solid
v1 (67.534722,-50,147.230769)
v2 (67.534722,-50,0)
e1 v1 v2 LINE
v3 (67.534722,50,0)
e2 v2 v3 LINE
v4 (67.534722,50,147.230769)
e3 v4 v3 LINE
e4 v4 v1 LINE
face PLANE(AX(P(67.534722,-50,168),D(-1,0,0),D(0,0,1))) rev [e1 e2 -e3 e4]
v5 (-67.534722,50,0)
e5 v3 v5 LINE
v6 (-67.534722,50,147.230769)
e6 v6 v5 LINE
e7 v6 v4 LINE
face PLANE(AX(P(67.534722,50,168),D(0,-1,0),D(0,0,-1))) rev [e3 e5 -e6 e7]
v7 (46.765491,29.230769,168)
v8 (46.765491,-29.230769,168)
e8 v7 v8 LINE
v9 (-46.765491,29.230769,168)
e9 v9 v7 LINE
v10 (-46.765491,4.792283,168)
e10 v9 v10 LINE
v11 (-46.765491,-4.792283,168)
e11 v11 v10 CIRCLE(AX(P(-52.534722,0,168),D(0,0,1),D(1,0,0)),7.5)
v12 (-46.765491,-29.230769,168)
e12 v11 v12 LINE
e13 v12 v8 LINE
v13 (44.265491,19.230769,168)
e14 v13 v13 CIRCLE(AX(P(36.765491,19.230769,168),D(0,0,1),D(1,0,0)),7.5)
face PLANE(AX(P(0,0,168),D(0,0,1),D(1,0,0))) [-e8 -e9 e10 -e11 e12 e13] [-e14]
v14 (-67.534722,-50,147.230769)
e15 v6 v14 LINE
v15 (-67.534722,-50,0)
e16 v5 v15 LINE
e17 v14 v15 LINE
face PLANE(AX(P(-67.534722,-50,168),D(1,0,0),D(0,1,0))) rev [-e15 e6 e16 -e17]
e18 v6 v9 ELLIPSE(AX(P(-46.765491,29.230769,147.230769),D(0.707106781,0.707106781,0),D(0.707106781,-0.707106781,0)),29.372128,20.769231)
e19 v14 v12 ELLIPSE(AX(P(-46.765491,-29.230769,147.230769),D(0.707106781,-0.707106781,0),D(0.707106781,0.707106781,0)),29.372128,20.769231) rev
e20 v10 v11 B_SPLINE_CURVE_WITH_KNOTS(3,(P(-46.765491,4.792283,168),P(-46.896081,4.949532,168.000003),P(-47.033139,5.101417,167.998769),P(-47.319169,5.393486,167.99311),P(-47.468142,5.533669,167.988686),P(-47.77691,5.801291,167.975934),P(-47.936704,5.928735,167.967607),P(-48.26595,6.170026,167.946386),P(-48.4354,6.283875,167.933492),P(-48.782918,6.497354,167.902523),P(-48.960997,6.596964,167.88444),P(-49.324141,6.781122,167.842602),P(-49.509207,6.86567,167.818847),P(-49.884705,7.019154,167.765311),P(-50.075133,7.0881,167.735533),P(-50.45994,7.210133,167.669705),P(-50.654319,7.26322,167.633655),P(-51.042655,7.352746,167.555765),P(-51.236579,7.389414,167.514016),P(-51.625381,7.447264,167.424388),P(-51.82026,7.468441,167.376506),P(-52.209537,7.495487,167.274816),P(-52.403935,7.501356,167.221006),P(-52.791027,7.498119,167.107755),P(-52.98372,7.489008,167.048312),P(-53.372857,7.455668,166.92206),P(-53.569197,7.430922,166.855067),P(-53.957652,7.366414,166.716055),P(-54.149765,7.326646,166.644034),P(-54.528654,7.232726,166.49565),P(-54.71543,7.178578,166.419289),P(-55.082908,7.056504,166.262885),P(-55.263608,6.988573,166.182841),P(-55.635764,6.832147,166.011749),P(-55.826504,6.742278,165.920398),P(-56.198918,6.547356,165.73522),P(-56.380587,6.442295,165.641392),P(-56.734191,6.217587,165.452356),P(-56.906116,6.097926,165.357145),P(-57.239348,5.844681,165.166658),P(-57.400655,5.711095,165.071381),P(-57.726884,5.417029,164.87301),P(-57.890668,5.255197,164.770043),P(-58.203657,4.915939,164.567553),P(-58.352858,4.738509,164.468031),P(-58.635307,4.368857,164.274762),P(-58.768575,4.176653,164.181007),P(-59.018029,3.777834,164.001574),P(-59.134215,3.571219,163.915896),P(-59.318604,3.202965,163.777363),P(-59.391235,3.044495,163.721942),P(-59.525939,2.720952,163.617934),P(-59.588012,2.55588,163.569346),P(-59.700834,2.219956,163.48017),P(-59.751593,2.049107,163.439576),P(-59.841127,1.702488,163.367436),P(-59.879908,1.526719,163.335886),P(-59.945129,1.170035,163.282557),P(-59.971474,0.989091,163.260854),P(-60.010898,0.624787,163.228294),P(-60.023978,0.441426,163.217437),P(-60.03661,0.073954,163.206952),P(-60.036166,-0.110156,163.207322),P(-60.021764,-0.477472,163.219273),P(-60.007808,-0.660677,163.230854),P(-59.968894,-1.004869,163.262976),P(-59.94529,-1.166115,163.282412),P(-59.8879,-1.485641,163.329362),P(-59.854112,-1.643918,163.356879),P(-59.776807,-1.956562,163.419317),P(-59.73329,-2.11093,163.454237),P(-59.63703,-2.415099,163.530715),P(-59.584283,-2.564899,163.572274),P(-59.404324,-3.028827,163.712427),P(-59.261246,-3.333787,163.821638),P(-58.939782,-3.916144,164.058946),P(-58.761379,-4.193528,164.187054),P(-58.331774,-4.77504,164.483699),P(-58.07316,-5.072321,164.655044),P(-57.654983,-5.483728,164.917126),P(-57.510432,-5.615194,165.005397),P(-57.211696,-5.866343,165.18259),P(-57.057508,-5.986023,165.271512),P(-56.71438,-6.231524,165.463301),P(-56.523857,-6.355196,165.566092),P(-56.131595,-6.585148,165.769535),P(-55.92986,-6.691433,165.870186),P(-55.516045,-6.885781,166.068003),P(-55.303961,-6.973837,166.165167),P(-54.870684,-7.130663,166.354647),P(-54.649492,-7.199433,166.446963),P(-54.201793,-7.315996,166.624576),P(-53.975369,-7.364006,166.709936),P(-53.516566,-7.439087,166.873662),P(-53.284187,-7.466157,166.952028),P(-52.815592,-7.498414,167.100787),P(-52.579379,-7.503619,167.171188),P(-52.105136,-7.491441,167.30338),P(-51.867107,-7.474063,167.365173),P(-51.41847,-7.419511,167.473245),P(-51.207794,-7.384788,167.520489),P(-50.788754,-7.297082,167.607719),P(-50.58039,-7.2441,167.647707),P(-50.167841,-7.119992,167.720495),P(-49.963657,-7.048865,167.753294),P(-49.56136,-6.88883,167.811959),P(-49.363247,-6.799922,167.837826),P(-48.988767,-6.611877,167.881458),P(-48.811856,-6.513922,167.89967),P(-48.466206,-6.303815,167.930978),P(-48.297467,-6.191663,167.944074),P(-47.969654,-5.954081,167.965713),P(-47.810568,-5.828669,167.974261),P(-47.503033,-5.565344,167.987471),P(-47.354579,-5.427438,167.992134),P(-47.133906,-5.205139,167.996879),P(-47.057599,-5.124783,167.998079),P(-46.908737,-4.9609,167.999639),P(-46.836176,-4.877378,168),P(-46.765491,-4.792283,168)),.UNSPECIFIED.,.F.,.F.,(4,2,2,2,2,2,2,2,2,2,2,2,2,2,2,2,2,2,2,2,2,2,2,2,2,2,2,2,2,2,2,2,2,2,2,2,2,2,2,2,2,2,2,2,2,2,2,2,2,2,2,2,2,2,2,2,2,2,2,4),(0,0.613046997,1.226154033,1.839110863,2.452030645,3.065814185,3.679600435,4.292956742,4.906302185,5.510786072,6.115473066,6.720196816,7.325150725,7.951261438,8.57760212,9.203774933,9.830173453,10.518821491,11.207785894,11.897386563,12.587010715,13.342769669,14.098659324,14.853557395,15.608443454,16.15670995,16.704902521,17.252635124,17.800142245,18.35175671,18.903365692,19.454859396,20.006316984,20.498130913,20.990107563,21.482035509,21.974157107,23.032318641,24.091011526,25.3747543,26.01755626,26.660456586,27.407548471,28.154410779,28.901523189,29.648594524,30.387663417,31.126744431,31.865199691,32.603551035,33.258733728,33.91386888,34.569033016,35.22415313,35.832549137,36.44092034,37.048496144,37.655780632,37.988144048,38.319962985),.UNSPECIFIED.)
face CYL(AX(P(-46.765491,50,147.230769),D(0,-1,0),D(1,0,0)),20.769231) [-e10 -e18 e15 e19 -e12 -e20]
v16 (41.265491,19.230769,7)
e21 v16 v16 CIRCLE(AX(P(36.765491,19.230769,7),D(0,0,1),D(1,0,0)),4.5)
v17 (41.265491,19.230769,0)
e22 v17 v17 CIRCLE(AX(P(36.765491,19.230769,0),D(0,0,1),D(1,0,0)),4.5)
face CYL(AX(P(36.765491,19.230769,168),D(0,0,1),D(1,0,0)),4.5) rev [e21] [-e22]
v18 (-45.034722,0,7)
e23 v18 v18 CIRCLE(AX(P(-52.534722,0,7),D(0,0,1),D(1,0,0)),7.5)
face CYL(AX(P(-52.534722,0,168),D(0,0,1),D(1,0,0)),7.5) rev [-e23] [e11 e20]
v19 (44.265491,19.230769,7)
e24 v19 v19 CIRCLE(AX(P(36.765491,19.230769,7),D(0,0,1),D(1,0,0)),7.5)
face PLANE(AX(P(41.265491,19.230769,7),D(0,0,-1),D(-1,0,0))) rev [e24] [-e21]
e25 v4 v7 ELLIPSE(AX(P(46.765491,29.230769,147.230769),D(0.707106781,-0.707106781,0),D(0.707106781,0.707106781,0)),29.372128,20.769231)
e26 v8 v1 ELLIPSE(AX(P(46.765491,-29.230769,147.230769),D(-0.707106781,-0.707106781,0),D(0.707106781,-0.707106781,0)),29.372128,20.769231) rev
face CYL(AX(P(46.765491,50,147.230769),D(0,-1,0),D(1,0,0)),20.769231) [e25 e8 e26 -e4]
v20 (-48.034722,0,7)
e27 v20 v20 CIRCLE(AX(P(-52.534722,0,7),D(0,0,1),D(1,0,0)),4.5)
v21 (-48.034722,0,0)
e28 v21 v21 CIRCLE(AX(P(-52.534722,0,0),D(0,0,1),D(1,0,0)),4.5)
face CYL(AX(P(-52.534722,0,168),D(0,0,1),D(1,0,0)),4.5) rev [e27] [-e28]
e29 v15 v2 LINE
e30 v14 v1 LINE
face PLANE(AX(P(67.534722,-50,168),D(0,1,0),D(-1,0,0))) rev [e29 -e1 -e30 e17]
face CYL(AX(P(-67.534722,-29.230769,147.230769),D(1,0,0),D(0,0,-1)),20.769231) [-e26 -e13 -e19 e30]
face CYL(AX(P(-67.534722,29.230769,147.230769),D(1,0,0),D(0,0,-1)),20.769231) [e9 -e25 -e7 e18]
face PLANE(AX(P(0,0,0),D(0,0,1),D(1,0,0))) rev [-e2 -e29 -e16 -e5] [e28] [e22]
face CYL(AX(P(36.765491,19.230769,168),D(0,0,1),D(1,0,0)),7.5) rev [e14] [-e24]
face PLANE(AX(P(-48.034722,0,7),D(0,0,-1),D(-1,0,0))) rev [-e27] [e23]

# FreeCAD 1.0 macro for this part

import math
import FreeCAD as App
import Part
import Sketcher
from FreeCAD import Vector

doc = App.newDocument("Part")
body = doc.addObject("PartDesign::Body", "Body")

sketch1 = body.newObject("Sketcher::SketchObject", "Sketch")
sketch1.AttachmentSupport = (doc.getObject("XY_Plane"), [""])
sketch1.MapMode = "FlatFace"
sketch1.addGeometry([
    Part.LineSegment(Vector(-68, 50, 0), Vector(-68, -50, 0)),
    Part.LineSegment(Vector(-68, -50, 0), Vector(68, -50, 0)),
    Part.LineSegment(Vector(68, -50, 0), Vector(68, 50, 0)),
    Part.LineSegment(Vector(68, 50, 0), Vector(-68, 50, 0)),
], False)
sketch1.addConstraint([
    Sketcher.Constraint("Coincident", 0, 2, 1, 1),
    Sketcher.Constraint("Coincident", 1, 2, 2, 1),
    Sketcher.Constraint("Coincident", 2, 2, 3, 1),
    Sketcher.Constraint("Coincident", 3, 2, 0, 1),
    Sketcher.Constraint("Vertical", 0),
    Sketcher.Constraint("Horizontal", 1),
    Sketcher.Constraint("Vertical", 2),
    Sketcher.Constraint("Horizontal", 3),
    Sketcher.Constraint("Symmetric", 0, 2, 2, 2, -1, 1),
    Sketcher.Constraint("DistanceY", 0, 2, 0, 1, 100.0),
    Sketcher.Constraint("DistanceX", 1, 1, 1, 2, 135.069444),
])
pad1 = body.newObject("PartDesign::Pad", "Pad")
pad1.Profile = sketch1
pad1.Length = 168

sketch2 = body.newObject("Sketcher::SketchObject", "Sketch001")
sketch2.AttachmentSupport = (doc.getObject("YZ_Plane"), [""])
sketch2.MapMode = "FlatFace"
sketch2.AttachmentOffset = App.Placement(Vector(0, 0, 67.534722), App.Rotation())
sketch2.addGeometry([
    Part.LineSegment(Vector(50, 147, 0), Vector(50, -19, 0)),
    Part.LineSegment(Vector(50, -19, 0), Vector(103, 294, 0)),
    Part.LineSegment(Vector(103, 294, 0), Vector(-34, 168, 0)),
    Part.LineSegment(Vector(-34, 168, 0), Vector(29, 168, 0)),
    Part.ArcOfCircle(Part.Circle(Vector(29, 147, 0), Vector(0, 0, 1), 21), math.radians(0), math.radians(90)),
], False)
sketch2.addConstraint([
    Sketcher.Constraint("Coincident", 0, 2, 1, 1),
    Sketcher.Constraint("Coincident", 1, 2, 2, 1),
    Sketcher.Constraint("Coincident", 2, 2, 3, 1),
    Sketcher.Constraint("Tangent", 3, 2, 4, 2),
    Sketcher.Constraint("Tangent", 4, 1, 0, 1),
    Sketcher.Constraint("Vertical", 0),
    Sketcher.Constraint("Horizontal", 3),
    Sketcher.Constraint("DistanceX", -1, 1, 0, 2, 50.0),
    Sketcher.Constraint("DistanceY", -1, 1, 2, 2, 168.0),
    Sketcher.Constraint("Radius", 4, 20.769231),
    Sketcher.Constraint("DistanceX", 3, 1, 3, 2, 62.891059),
    Sketcher.Constraint("DistanceY", 0, 2, 0, 1, 165.786881),
    Sketcher.Constraint("Distance", 1, 317.011059),
    Sketcher.Constraint("DistanceY", -1, 1, 1, 2, 294.033911),
])
pocket1 = body.newObject("PartDesign::Pocket", "Pocket")
pocket1.Profile = sketch2
pocket1.Type = "ThroughAll"

sketch3 = body.newObject("Sketcher::SketchObject", "Sketch002")
sketch3.AttachmentSupport = (doc.getObject("XZ_Plane"), [""])
sketch3.MapMode = "FlatFace"
sketch3.AttachmentOffset = App.Placement(Vector(0, 0, 50), App.Rotation())
sketch3.addGeometry([
    Part.LineSegment(Vector(68, 147, 0), Vector(68, 12, 0)),
    Part.LineSegment(Vector(68, 12, 0), Vector(116, 236, 0)),
    Part.LineSegment(Vector(116, 236, 0), Vector(-16, 168, 0)),
    Part.LineSegment(Vector(-16, 168, 0), Vector(47, 168, 0)),
    Part.ArcOfCircle(Part.Circle(Vector(47, 147, 0), Vector(0, 0, 1), 21), math.radians(0), math.radians(90)),
], False)
sketch3.addConstraint([
    Sketcher.Constraint("Coincident", 0, 2, 1, 1),
    Sketcher.Constraint("Coincident", 1, 2, 2, 1),
    Sketcher.Constraint("Coincident", 2, 2, 3, 1),
    Sketcher.Constraint("Tangent", 3, 2, 4, 2),
    Sketcher.Constraint("Tangent", 4, 1, 0, 1),
    Sketcher.Constraint("Vertical", 0),
    Sketcher.Constraint("Horizontal", 3),
    Sketcher.Constraint("DistanceY", -1, 1, 2, 2, 168.0),
    Sketcher.Constraint("Radius", 4, 20.769231),
    Sketcher.Constraint("DistanceX", 3, 1, 3, 2, 62.891059),
    Sketcher.Constraint("DistanceY", 0, 2, 0, 1, 135.150453),
    Sketcher.Constraint("DistanceX", -1, 1, 4, 3, 46.765491),
    Sketcher.Constraint("DistanceY", -1, 1, 1, 2, 236.38714),
    Sketcher.Constraint("DistanceX", 4, 3, 1, 2, 69.533382),
])
pocket2 = body.newObject("PartDesign::Pocket", "Pocket001")
pocket2.Profile = sketch3
pocket2.Type = "ThroughAll"
doc.recompute()

mirrored = body.newObject("PartDesign::Mirrored", "Mirrored")
mirrored.Originals = [pocket1]
mirrored.MirrorPlane = (doc.getObject("XZ_Plane"), [""])
body.Tip = mirrored
doc.recompute()

mirrored2 = body.newObject("PartDesign::Mirrored", "Mirrored001")
mirrored2.Originals = [pocket2]
mirrored2.MirrorPlane = (doc.getObject("YZ_Plane"), [""])
body.Tip = mirrored2

sketch4 = body.newObject("Sketcher::SketchObject", "Sketch003")
sketch4.AttachmentSupport = (doc.getObject("YZ_Plane"), [""])
sketch4.MapMode = "FlatFace"
sketch4.AttachmentOffset = App.Placement(Vector(0, 0, -67.534722), App.Rotation())
sketch4.addGeometry([
    Part.LineSegment(Vector(-50, 147, 0), Vector(-50, -19, 0)),
    Part.LineSegment(Vector(-50, -19, 0), Vector(-103, 294, 0)),
    Part.LineSegment(Vector(-103, 294, 0), Vector(34, 168, 0)),
    Part.LineSegment(Vector(34, 168, 0), Vector(-29, 168, 0)),
    Part.ArcOfCircle(Part.Circle(Vector(-29, 147, 0), Vector(0, 0, 1), 21), math.radians(90), math.radians(180)),
], False)
sketch4.addConstraint([
    Sketcher.Constraint("Coincident", 0, 2, 1, 1),
    Sketcher.Constraint("Coincident", 1, 2, 2, 1),
    Sketcher.Constraint("Coincident", 2, 2, 3, 1),
    Sketcher.Constraint("Tangent", 3, 2, 4, 1),
    Sketcher.Constraint("Tangent", 4, 2, 0, 1),
    Sketcher.Constraint("Vertical", 0),
    Sketcher.Constraint("Horizontal", 3),
    Sketcher.Constraint("DistanceX", 0, 2, -1, 1, 50.0),
    Sketcher.Constraint("DistanceY", -1, 1, 2, 2, 168.0),
    Sketcher.Constraint("Radius", 4, 20.769231),
    Sketcher.Constraint("DistanceX", 3, 2, 3, 1, 62.891059),
    Sketcher.Constraint("DistanceY", 0, 2, 0, 1, 165.786881),
    Sketcher.Constraint("Distance", 1, 317.011059),
    Sketcher.Constraint("DistanceY", -1, 1, 1, 2, 294.033911),
])
pocket3 = body.newObject("PartDesign::Pocket", "Pocket002")
pocket3.Profile = sketch4
pocket3.Type = "ThroughAll"
pocket3.Reversed = True

sketch5 = body.newObject("Sketcher::SketchObject", "Sketch004")
sketch5.AttachmentSupport = (doc.getObject("YZ_Plane"), [""])
sketch5.MapMode = "FlatFace"
sketch5.AttachmentOffset = App.Placement(Vector(0, 0, -67.534722), App.Rotation())
sketch5.addGeometry([
    Part.LineSegment(Vector(50, -19, 0), Vector(50, 147, 0)),
    Part.ArcOfCircle(Part.Circle(Vector(29, 147, 0), Vector(0, 0, 1), 21), math.radians(0), math.radians(90)),
    Part.LineSegment(Vector(29, 168, 0), Vector(-34, 168, 0)),
    Part.LineSegment(Vector(-34, 168, 0), Vector(103, 294, 0)),
    Part.LineSegment(Vector(103, 294, 0), Vector(50, -19, 0)),
], False)
sketch5.addConstraint([
    Sketcher.Constraint("Tangent", 0, 2, 1, 1),
    Sketcher.Constraint("Tangent", 1, 2, 2, 1),
    Sketcher.Constraint("Coincident", 2, 2, 3, 1),
    Sketcher.Constraint("Coincident", 3, 2, 4, 1),
    Sketcher.Constraint("Coincident", 4, 2, 0, 1),
    Sketcher.Constraint("Vertical", 0),
    Sketcher.Constraint("Horizontal", 2),
    Sketcher.Constraint("DistanceX", -1, 1, 0, 2, 50.0),
    Sketcher.Constraint("DistanceY", -1, 1, 1, 2, 168.0),
    Sketcher.Constraint("Radius", 1, 20.769231),
    Sketcher.Constraint("DistanceX", 2, 2, 2, 1, 62.891059),
    Sketcher.Constraint("DistanceY", 0, 1, 0, 2, 165.786881),
    Sketcher.Constraint("Distance", 4, 317.011059),
    Sketcher.Constraint("DistanceY", -1, 1, 3, 2, 294.033911),
])
pocket4 = body.newObject("PartDesign::Pocket", "Pocket003")
pocket4.Profile = sketch5
pocket4.Type = "ThroughAll"
pocket4.Reversed = True

sketch6 = body.newObject("Sketcher::SketchObject", "Sketch005")
sketch6.AttachmentSupport = (doc.getObject("XY_Plane"), [""])
sketch6.MapMode = "FlatFace"
sketch6.AttachmentOffset = App.Placement(Vector(0, 0, 168), App.Rotation())
sketch6.addGeometry(Part.Circle(Vector(-52.5, 0, 0), Vector(0, 0, 1), 4.5), False)
sketch6.addConstraint([
    Sketcher.Constraint("PointOnObject", 0, 3, -1),
    Sketcher.Constraint("Diameter", 0, 9.0),
    Sketcher.Constraint("DistanceX", 0, 3, -1, 1, 52.534722),
])
doc.recompute()
hole = body.newObject("PartDesign::Hole", "Hole")
hole.Profile = sketch6
hole.ThreadType = "None"
hole.Diameter = 9
hole.DepthType = "ThroughAll"
hole.HoleCutType = "Counterbore"
hole.HoleCutDiameter = 15
hole.HoleCutDepth = 161

sketch7 = body.newObject("Sketcher::SketchObject", "Sketch006")
sketch7.AttachmentSupport = (doc.getObject("XY_Plane"), [""])
sketch7.MapMode = "FlatFace"
sketch7.AttachmentOffset = App.Placement(Vector(0, 0, 168), App.Rotation())
sketch7.addGeometry(Part.Circle(Vector(36.8, 19.2, 0), Vector(0, 0, 1), 4.5), False)
sketch7.addConstraint([
    Sketcher.Constraint("Diameter", 0, 9.0),
    Sketcher.Constraint("DistanceX", -1, 1, 0, 3, 36.765491),
    Sketcher.Constraint("DistanceY", -1, 1, 0, 3, 19.230769),
])
doc.recompute()
hole2 = body.newObject("PartDesign::Hole", "Hole001")
hole2.Profile = sketch7
hole2.ThreadType = "None"
hole2.Diameter = 9
hole2.DepthType = "ThroughAll"
hole2.HoleCutType = "Counterbore"
hole2.HoleCutDiameter = 15
hole2.HoleCutDepth = 161

doc.recompute()
